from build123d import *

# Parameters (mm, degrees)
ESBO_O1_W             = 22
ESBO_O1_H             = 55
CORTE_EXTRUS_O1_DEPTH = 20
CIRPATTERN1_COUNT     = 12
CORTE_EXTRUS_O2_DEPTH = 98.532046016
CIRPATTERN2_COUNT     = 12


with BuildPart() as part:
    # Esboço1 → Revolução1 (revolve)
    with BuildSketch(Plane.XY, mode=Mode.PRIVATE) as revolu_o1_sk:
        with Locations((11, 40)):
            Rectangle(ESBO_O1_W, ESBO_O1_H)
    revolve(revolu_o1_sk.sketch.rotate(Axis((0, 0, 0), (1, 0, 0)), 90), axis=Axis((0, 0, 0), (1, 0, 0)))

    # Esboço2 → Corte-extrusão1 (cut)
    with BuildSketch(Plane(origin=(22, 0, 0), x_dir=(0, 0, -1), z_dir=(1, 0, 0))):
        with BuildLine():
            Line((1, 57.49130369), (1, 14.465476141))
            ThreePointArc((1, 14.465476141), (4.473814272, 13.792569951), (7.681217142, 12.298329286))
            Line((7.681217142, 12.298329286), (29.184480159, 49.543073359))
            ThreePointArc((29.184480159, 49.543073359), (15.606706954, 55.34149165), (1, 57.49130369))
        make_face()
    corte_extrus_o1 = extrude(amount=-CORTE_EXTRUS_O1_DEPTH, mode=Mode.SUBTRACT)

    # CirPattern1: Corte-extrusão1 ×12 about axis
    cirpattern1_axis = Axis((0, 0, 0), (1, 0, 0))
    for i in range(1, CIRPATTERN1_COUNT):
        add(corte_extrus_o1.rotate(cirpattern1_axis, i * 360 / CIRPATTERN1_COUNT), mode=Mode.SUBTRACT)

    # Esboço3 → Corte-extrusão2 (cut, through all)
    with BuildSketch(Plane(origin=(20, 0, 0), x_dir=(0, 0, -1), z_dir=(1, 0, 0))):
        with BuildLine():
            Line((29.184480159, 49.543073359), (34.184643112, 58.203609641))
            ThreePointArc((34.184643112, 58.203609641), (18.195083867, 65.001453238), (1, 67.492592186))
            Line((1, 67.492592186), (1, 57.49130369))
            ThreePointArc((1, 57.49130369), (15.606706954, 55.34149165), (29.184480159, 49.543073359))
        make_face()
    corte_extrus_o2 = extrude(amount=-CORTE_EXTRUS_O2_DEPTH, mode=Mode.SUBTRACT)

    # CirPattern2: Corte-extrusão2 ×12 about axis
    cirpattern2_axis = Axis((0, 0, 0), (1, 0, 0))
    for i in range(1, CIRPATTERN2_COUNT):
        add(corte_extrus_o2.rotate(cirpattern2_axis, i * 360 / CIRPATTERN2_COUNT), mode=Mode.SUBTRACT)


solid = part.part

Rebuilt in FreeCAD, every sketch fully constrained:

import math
import FreeCAD as App
import Part
import Sketcher
Q = App.Units.Quantity

doc = App.newDocument("Part")
body = doc.addObject("PartDesign::Body", "Body")

sketch1 = doc.addObject("Sketcher::SketchObject", "Sketch")
body.addObject(sketch1)
sketch1.AttachmentSupport = (doc.XY_Plane, [""])
sketch1.MapMode = "FlatFace"
sketch1.addGeometry([
    Part.LineSegment(App.Vector(0, 68, 0), App.Vector(0, 12, 0)),
    Part.LineSegment(App.Vector(0, 12, 0), App.Vector(22, 12, 0)),
    Part.LineSegment(App.Vector(22, 12, 0), App.Vector(22, 68, 0)),
    Part.LineSegment(App.Vector(22, 68, 0), App.Vector(0, 68, 0)),
], False)
sketch1.addConstraint([
    Sketcher.Constraint("Coincident", 0, 2, 1, 1),
    Sketcher.Constraint("Coincident", 1, 2, 2, 1),
    Sketcher.Constraint("Coincident", 2, 2, 3, 1),
    Sketcher.Constraint("Coincident", 3, 2, 0, 1),
    Sketcher.Constraint("Vertical", 0),
    Sketcher.Constraint("Horizontal", 1),
    Sketcher.Constraint("Vertical", 2),
    Sketcher.Constraint("Horizontal", 3),
    Sketcher.Constraint("PointOnObject", 0, 2, -2),
    Sketcher.Constraint("DistanceX", 1, 1, 1, 2, 22.0),
    Sketcher.Constraint("DistanceY", 0, 2, 0, 1, 55.0),
    Sketcher.Constraint("DistanceY", -1, 1, 0, 2, 12.5),
])
revolution = doc.addObject("PartDesign::Revolution", "Revolution")
body.addObject(revolution)
revolution.Profile = sketch1
revolution.ReferenceAxis = (sketch1, ["H_Axis"])
revolution.Angle = 360

sketch2 = doc.addObject("Sketcher::SketchObject", "Sketch001")
body.addObject(sketch2)
sketch2.AttachmentSupport = (doc.YZ_Plane, [""])
sketch2.MapMode = "FlatFace"
sketch2.AttachmentOffset = App.Placement(App.Vector(0, 0, 22), App.Rotation())
sketch2.addGeometry([
    Part.LineSegment(App.Vector(57, -1, 0), App.Vector(14, -1, 0)),
    Part.ArcOfCircle(Part.Circle(App.Vector(0, 0, 0), App.Vector(0, 0, 1), 15), math.radians(-32), math.radians(-4)),
    Part.LineSegment(App.Vector(12, -8, 0), App.Vector(50, -29, 0)),
    Part.ArcOfCircle(Part.Circle(App.Vector(0, 0, 0), App.Vector(0, 0, 1), 57), math.radians(-31), math.radians(-1)),
], False)
sketch2.addConstraint([
    Sketcher.Constraint("Coincident", 0, 2, 1, 2),
    Sketcher.Constraint("Coincident", 1, 1, 2, 1),
    Sketcher.Constraint("Coincident", 2, 2, 3, 1),
    Sketcher.Constraint("Coincident", 3, 2, 0, 1),
    Sketcher.Constraint("Horizontal", 0),
    Sketcher.Constraint("Coincident", 1, 3, -1, 1),
    Sketcher.Constraint("Coincident", 3, 3, -1, 1),
    Sketcher.Constraint("Radius", 1, 14.5),
    Sketcher.Constraint("Radius", 3, 57.5),
    Sketcher.Constraint("Angle", 2, Q("-30 deg")),
    Sketcher.Constraint("DistanceY", 0, 2, -1, 1, 1.0),
    Sketcher.Constraint("DistanceX", -1, 1, 1, 1, 12.298329),
])
pocket1 = doc.addObject("PartDesign::Pocket", "Pocket")
body.addObject(pocket1)
pocket1.Profile = sketch2
pocket1.Length = 20
doc.recompute()

polarpattern = doc.addObject("PartDesign::PolarPattern", "PolarPattern")
body.addObject(polarpattern)
polarpattern.Originals = [pocket1]
polarpattern.Axis = (doc.X_Axis, [""])
polarpattern.Angle = 360
polarpattern.Occurrences = 12
body.Tip = polarpattern

sketch3 = doc.addObject("Sketcher::SketchObject", "Sketch002")
body.addObject(sketch3)
sketch3.AttachmentSupport = (doc.YZ_Plane, [""])
sketch3.MapMode = "FlatFace"
sketch3.AttachmentOffset = App.Placement(App.Vector(0, 0, 20), App.Rotation())
sketch3.addGeometry([
    Part.LineSegment(App.Vector(50, -29, 0), App.Vector(58, -34, 0)),
    Part.ArcOfCircle(Part.Circle(App.Vector(0, 0, 0), App.Vector(0, 0, 1), 67), math.radians(-30), math.radians(-1)),
    Part.LineSegment(App.Vector(67, -1, 0), App.Vector(57, -1, 0)),
    Part.ArcOfCircle(Part.Circle(App.Vector(0, 0, 0), App.Vector(0, 0, 1), 57), math.radians(-31), math.radians(-1)),
], False)
sketch3.addConstraint([
    Sketcher.Constraint("Coincident", 0, 2, 1, 1),
    Sketcher.Constraint("Coincident", 1, 2, 2, 1),
    Sketcher.Constraint("Coincident", 2, 2, 3, 2),
    Sketcher.Constraint("Coincident", 3, 1, 0, 1),
    Sketcher.Constraint("Horizontal", 2),
    Sketcher.Constraint("Coincident", 1, 3, -1, 1),
    Sketcher.Constraint("Coincident", 3, 3, -1, 1),
    Sketcher.Constraint("Radius", 1, 67.5),
    Sketcher.Constraint("Radius", 3, 57.5),
    Sketcher.Constraint("Angle", 0, Q("-30 deg")),
    Sketcher.Constraint("DistanceY", 1, 2, -1, 1, 1.0),
    Sketcher.Constraint("DistanceX", -1, 1, 0, 2, 58.20361),
])
pocket2 = doc.addObject("PartDesign::Pocket", "Pocket001")
body.addObject(pocket2)
pocket2.Profile = sketch3
pocket2.Type = "ThroughAll"
doc.recompute()

polarpattern2 = doc.addObject("PartDesign::PolarPattern", "PolarPattern001")
body.addObject(polarpattern2)
polarpattern2.Originals = [pocket2]
polarpattern2.Axis = (doc.X_Axis, [""])
polarpattern2.Angle = 360
polarpattern2.Occurrences = 12
body.Tip = polarpattern2

doc.recompute()
